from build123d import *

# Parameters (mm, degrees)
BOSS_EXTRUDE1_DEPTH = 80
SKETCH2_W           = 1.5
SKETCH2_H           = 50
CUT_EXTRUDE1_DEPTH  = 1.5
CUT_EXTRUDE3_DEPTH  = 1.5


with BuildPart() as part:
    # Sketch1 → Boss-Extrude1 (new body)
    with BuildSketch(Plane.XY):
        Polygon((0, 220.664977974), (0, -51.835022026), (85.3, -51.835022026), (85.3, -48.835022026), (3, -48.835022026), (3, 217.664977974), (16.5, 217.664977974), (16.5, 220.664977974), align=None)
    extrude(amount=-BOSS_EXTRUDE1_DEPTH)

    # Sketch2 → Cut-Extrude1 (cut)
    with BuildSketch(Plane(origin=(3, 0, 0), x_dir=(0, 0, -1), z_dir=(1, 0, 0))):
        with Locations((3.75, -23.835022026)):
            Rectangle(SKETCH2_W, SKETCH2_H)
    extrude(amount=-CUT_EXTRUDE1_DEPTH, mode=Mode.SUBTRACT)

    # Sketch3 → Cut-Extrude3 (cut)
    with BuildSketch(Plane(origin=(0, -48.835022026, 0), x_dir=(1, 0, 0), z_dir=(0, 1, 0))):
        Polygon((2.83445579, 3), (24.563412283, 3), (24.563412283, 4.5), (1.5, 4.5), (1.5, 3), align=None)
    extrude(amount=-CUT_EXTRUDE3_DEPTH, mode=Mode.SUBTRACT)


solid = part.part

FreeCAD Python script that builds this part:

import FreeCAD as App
import Part
import Sketcher
from FreeCAD import Vector


def add_polygon(sketch, points):
    """Adds a closed chain of lines whose ends are joined by coincident constraints."""
    first, n = sketch.GeometryCount, len(points)
    for a, b in zip(points, points[1:] + points[:1]):
        sketch.addGeometry(Part.LineSegment(App.Vector(*a, 0), App.Vector(*b, 0)), False)
    for i in range(n):
        sketch.addConstraint(Sketcher.Constraint("Coincident", first + i, 2, first + (i + 1) % n, 1))

doc = App.newDocument("Part")
body = doc.addObject("PartDesign::Body", "Body")

# Sketch on XY plane
sketch1 = body.newObject("Sketcher::SketchObject", "Sketch")
sketch1.AttachmentSupport = (doc.getObject("XY_Plane"), [""])
sketch1.MapMode = "FlatFace"
add_polygon(sketch1, [(0, 220.664978), (0, -51.835022), (85.3, -51.835022), (85.3, -48.835022), (3, -48.835022), (3, 217.664978), (16.5, 217.664978), (16.5, 220.664978)])  # lines 0-7
sketch1.addConstraint(Sketcher.Constraint("Vertical", 0))
sketch1.addConstraint(Sketcher.Constraint("Horizontal", 1))
sketch1.addConstraint(Sketcher.Constraint("Vertical", 2))
sketch1.addConstraint(Sketcher.Constraint("Horizontal", 3))
sketch1.addConstraint(Sketcher.Constraint("Vertical", 4))
sketch1.addConstraint(Sketcher.Constraint("Horizontal", 5))
sketch1.addConstraint(Sketcher.Constraint("Vertical", 6))
sketch1.addConstraint(Sketcher.Constraint("Horizontal", 7))
sketch1.addConstraint(Sketcher.Constraint("PointOnObject", 0, 2, -2))
sketch1.addConstraint(Sketcher.Constraint("Equal", 2, 6))
sketch1.addConstraint(Sketcher.Constraint("DistanceY", 2, 1, 2, 2, 3.0))
sketch1.addConstraint(Sketcher.Constraint("DistanceX", 1, 1, 1, 2, 85.3))
sketch1.addConstraint(Sketcher.Constraint("DistanceX", 3, 2, 3, 1, 82.3))
sketch1.addConstraint(Sketcher.Constraint("DistanceX", 5, 1, 5, 2, 13.5))
sketch1.addConstraint(Sketcher.Constraint("DistanceY", 0, 2, 0, 1, 272.5))
sketch1.addConstraint(Sketcher.Constraint("DistanceY", 0, 2, -1, 1, 51.835022))
pad1 = body.newObject("PartDesign::Pad", "Pad")
pad1.Profile = sketch1
pad1.Length = 80
pad1.Reversed = True

# Sketch on YZ plane
sketch2 = body.newObject("Sketcher::SketchObject", "Sketch001")
sketch2.AttachmentSupport = (doc.getObject("YZ_Plane"), [""])
sketch2.MapMode = "FlatFace"
sketch2.AttachmentOffset = App.Placement(Vector(0, 0, 3), App.Rotation())
add_polygon(sketch2, [(1.164978, -3), (-48.835022, -3), (-48.835022, -4.5), (1.164978, -4.5)])  # lines 0-3
sketch2.addConstraint(Sketcher.Constraint("Horizontal", 0))
sketch2.addConstraint(Sketcher.Constraint("Vertical", 1))
sketch2.addConstraint(Sketcher.Constraint("Horizontal", 2))
sketch2.addConstraint(Sketcher.Constraint("Vertical", 3))
sketch2.addConstraint(Sketcher.Constraint("DistanceX", 0, 2, 0, 1, 50.0))
sketch2.addConstraint(Sketcher.Constraint("DistanceY", 1, 2, 1, 1, 1.5))
sketch2.addConstraint(Sketcher.Constraint("DistanceY", 0, 2, -1, 1, 3.0))
sketch2.addConstraint(Sketcher.Constraint("DistanceX", 0, 2, -1, 1, 48.835022))
pocket1 = body.newObject("PartDesign::Pocket", "Pocket")
pocket1.Profile = sketch2
pocket1.Length = 1.5

# Sketch on XZ plane
sketch3 = body.newObject("Sketcher::SketchObject", "Sketch002")
sketch3.AttachmentSupport = (doc.getObject("XZ_Plane"), [""])
sketch3.MapMode = "FlatFace"
sketch3.AttachmentOffset = App.Placement(Vector(0, 0, 48.835022), App.Rotation())
add_polygon(sketch3, [(24.563412, -3), (24.563412, -4.5), (1.5, -4.5), (1.5, -3)])  # lines 0-3
sketch3.addConstraint(Sketcher.Constraint("Vertical", 0))
sketch3.addConstraint(Sketcher.Constraint("Horizontal", 1))
sketch3.addConstraint(Sketcher.Constraint("Vertical", 2))
sketch3.addConstraint(Sketcher.Constraint("Horizontal", 3))
sketch3.addConstraint(Sketcher.Constraint("DistanceY", 0, 2, 0, 1, 1.5))
sketch3.addConstraint(Sketcher.Constraint("DistanceY", 2, 2, -1, 1, 3.0))
sketch3.addConstraint(Sketcher.Constraint("DistanceX", -1, 1, 1, 2, 1.5))
sketch3.addConstraint(Sketcher.Constraint("DistanceX", 1, 2, 1, 1, 23.063412))
pocket2 = body.newObject("PartDesign::Pocket", "Pocket001")
pocket2.Profile = sketch3
pocket2.Length = 1.5
pocket2.Reversed = True

doc.recompute()
